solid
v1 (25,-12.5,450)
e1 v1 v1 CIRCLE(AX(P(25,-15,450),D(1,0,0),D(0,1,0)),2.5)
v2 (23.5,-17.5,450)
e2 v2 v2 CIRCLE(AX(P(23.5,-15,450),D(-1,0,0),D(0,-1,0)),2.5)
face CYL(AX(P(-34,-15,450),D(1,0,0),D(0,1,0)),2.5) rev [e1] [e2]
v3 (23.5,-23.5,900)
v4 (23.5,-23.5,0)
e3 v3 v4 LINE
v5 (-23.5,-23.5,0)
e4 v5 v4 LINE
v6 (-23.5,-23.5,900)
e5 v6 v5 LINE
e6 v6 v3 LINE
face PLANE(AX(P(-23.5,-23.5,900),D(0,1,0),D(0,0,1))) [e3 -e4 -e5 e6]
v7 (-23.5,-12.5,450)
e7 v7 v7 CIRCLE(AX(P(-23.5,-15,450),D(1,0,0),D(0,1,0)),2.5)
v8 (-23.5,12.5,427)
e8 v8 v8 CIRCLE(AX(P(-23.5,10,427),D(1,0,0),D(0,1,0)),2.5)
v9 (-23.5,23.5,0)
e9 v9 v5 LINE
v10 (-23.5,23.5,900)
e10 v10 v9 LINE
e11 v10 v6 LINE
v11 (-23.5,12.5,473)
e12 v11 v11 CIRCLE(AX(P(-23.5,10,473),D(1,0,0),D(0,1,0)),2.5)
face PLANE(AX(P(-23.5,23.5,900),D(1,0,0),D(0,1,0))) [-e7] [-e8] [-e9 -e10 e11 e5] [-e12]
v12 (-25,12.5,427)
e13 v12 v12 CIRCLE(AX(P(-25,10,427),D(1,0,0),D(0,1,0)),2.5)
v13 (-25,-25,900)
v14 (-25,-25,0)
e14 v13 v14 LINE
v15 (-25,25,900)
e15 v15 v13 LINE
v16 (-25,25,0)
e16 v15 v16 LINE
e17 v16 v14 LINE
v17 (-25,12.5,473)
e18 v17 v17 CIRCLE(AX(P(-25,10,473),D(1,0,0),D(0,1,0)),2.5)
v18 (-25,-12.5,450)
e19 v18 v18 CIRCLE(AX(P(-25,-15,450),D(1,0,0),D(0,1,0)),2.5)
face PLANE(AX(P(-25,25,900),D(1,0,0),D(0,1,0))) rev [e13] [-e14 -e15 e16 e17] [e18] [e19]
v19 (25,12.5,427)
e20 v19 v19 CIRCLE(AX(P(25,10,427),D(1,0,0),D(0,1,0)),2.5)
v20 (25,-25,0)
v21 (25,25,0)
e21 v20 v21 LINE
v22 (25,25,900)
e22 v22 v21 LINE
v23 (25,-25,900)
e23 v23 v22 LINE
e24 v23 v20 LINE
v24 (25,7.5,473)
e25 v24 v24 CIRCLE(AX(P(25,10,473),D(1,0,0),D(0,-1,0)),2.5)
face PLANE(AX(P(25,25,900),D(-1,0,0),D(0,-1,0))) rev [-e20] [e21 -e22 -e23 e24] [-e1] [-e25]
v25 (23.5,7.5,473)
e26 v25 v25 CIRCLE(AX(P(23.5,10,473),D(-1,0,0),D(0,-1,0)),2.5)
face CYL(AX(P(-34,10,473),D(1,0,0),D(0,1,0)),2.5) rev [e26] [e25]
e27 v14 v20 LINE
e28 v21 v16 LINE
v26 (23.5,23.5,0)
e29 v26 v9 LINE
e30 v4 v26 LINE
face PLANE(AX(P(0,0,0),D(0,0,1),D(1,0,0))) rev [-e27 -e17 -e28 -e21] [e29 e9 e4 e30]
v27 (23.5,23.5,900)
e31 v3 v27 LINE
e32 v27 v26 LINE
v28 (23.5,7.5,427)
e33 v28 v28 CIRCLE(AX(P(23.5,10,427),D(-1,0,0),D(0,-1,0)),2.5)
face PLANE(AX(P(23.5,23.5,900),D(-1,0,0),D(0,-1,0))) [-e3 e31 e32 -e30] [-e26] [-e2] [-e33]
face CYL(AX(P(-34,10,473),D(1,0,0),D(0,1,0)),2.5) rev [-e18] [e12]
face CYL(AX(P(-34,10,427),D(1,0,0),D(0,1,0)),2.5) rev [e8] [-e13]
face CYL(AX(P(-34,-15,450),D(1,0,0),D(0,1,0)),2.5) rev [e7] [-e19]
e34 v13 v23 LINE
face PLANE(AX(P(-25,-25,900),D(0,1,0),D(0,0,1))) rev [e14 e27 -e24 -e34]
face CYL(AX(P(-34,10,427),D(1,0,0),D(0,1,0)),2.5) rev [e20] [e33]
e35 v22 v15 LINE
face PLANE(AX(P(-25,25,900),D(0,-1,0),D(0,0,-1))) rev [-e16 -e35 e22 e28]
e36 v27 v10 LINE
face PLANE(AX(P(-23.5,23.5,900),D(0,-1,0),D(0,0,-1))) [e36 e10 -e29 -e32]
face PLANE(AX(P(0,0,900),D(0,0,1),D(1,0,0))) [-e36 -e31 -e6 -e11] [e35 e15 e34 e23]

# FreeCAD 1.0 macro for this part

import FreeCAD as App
import Part
import Sketcher
from FreeCAD import Vector


def add_polygon(sketch, points):
    """Adds a closed chain of lines whose ends are joined by coincident constraints."""
    first, n = sketch.GeometryCount, len(points)
    for a, b in zip(points, points[1:] + points[:1]):
        sketch.addGeometry(Part.LineSegment(App.Vector(*a, 0), App.Vector(*b, 0)), False)
    for i in range(n):
        sketch.addConstraint(Sketcher.Constraint("Coincident", first + i, 2, first + (i + 1) % n, 1))

doc = App.newDocument("Part")
body = doc.addObject("PartDesign::Body", "Body")

sketch1 = body.newObject("Sketcher::SketchObject", "Sketch")
sketch1.AttachmentSupport = (doc.getObject("XY_Plane"), [""])
sketch1.MapMode = "FlatFace"
add_polygon(sketch1, [(-25, 25), (-25, -25), (25, -25), (25, 25)])
add_polygon(sketch1, [(23.5, -23.5), (-23.5, -23.5), (-23.5, 23.5), (23.5, 23.5)])
sketch1.addConstraint([
    Sketcher.Constraint("Vertical", 0),
    Sketcher.Constraint("Horizontal", 1),
    Sketcher.Constraint("Vertical", 2),
    Sketcher.Constraint("Horizontal", 3),
    Sketcher.Constraint("Horizontal", 4),
    Sketcher.Constraint("Vertical", 5),
    Sketcher.Constraint("Horizontal", 6),
    Sketcher.Constraint("Vertical", 7),
    Sketcher.Constraint("Symmetric", 0, 2, 2, 2, -1, 1),
    Sketcher.Constraint("Symmetric", 4, 2, 6, 2, -1, 1),
    Sketcher.Constraint("Equal", 3, 0),
    Sketcher.Constraint("Equal", 6, 5),
    Sketcher.Constraint("DistanceX", 1, 1, 1, 2, 50.0),
    Sketcher.Constraint("DistanceX", 4, 2, 4, 1, 47.0),
])
pad1 = body.newObject("PartDesign::Pad", "Pad")
pad1.Profile = sketch1
pad1.Length = 900

sketch2 = body.newObject("Sketcher::SketchObject", "Sketch001")
sketch2.AttachmentSupport = (doc.getObject("YZ_Plane"), [""])
sketch2.MapMode = "FlatFace"
sketch2.AttachmentOffset = App.Placement(Vector(0, 0, 25), App.Rotation())
sketch2.addGeometry([
    Part.Circle(Vector(-15, 450, 0), Vector(0, 0, 1), 2.5),
    Part.Circle(Vector(10, 427, 0), Vector(0, 0, 1), 2.5),
    Part.Circle(Vector(10, 473, 0), Vector(0, 0, 1), 2.5),
], False)
sketch2.addConstraint([
    Sketcher.Constraint("Equal", 0, 1),
    Sketcher.Constraint("Equal", 1, 2),
    Sketcher.Constraint("Vertical", 1, 3, 2, 3),
    Sketcher.Constraint("Diameter", 0, 5.0),
    Sketcher.Constraint("DistanceX", 0, 3, -1, 1, 15.0),
    Sketcher.Constraint("DistanceY", -1, 1, 0, 3, 450.0),
    Sketcher.Constraint("DistanceX", -1, 1, 1, 3, 10.0),
    Sketcher.Constraint("DistanceY", -1, 1, 1, 3, 427.0),
    Sketcher.Constraint("DistanceY", -1, 1, 2, 3, 473.0),
])
pocket1 = body.newObject("PartDesign::Pocket", "Pocket")
pocket1.Profile = sketch2
pocket1.Length = 59

doc.recompute()
